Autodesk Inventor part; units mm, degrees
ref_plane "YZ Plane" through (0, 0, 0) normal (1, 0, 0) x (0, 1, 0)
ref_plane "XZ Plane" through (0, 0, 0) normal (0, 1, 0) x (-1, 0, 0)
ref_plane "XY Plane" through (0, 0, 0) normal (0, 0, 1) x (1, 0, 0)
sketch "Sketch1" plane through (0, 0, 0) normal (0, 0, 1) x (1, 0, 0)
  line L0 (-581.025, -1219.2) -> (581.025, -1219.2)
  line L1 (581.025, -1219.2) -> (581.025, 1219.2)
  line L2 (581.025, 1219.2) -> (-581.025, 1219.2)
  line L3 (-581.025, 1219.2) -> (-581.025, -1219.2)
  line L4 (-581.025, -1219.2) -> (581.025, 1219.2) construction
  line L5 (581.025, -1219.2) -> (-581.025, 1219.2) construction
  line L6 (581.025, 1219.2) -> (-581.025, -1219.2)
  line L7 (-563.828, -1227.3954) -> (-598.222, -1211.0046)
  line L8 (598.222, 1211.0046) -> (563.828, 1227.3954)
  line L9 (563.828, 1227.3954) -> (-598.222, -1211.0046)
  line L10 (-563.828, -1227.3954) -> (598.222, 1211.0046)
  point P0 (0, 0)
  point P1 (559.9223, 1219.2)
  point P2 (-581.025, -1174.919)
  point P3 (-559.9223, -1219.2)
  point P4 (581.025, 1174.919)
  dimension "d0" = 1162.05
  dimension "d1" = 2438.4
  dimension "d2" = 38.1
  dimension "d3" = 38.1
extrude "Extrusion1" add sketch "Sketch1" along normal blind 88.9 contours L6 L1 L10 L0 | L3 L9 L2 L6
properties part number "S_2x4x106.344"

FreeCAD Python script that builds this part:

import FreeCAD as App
import Part
import Sketcher

V = App.Vector
Q = App.Units.Quantity

doc = App.newDocument("Part")
body = doc.addObject("PartDesign::Body", "Body")

# Sketch on XY plane
sketch1 = body.newObject("Sketcher::SketchObject", "Sketch")
sketch1.AttachmentSupport = (doc.getObject("XY_Plane"), [""])
sketch1.MapMode = "FlatFace"
sketch1.addGeometry([
    Part.LineSegment(V(581.025, 1174.919092, 0), V(581.025, 1219.2, 0)),  # 0
    Part.LineSegment(V(581.025, 1219.2, 0), V(559.92238, 1219.2, 0)),  # 1
    Part.LineSegment(V(559.92238, 1219.2, 0), V(-581.025, -1174.919092, 0)),  # 2
    Part.LineSegment(V(-581.025, -1174.919092, 0), V(-581.025, -1219.2, 0)),  # 3
    Part.LineSegment(V(-581.025, -1219.2, 0), V(-559.92238, -1219.2, 0)),  # 4
    Part.LineSegment(V(-559.92238, -1219.2, 0), V(581.025, 1174.919092, 0)),  # 5
], False)
sketch1.addConstraint([
    Sketcher.Constraint("Coincident", 0, 2, 1, 1),
    Sketcher.Constraint("Coincident", 1, 2, 2, 1),
    Sketcher.Constraint("Coincident", 2, 2, 3, 1),
    Sketcher.Constraint("Coincident", 3, 2, 4, 1),
    Sketcher.Constraint("Coincident", 4, 2, 5, 1),
    Sketcher.Constraint("Coincident", 5, 2, 0, 1),
    Sketcher.Constraint("Vertical", 0),
    Sketcher.Constraint("Horizontal", 1),
    Sketcher.Constraint("Vertical", 3),
    Sketcher.Constraint("Horizontal", 4),
    Sketcher.Constraint("DistanceY", 3, 2, 1, 2, Q("96 in")),
    Sketcher.Constraint("DistanceX", 2, 2, 0, 2, Q("45.75 in")),
    Sketcher.Constraint("DistanceY", -1, 1, 0, 2, Q("48 in")),
    Sketcher.Constraint("DistanceX", 1, 2, 1, 1, Q("0.8308 in")),
    Sketcher.Constraint("DistanceX", 4, 1, 4, 2, Q("0.8308 in")),
    Sketcher.Constraint("DistanceX", -1, 1, 0, 2, Q("22.875 in")),
    Sketcher.Constraint("DistanceY", 0, 1, 0, 2, 44.281),
    Sketcher.Constraint("DistanceY", 3, 2, 3, 1, 44.281),
])
pad1 = body.newObject("PartDesign::Pad", "Pad")
pad1.Profile = sketch1
pad1.Length = Q("3.5 in")

doc.recompute()
